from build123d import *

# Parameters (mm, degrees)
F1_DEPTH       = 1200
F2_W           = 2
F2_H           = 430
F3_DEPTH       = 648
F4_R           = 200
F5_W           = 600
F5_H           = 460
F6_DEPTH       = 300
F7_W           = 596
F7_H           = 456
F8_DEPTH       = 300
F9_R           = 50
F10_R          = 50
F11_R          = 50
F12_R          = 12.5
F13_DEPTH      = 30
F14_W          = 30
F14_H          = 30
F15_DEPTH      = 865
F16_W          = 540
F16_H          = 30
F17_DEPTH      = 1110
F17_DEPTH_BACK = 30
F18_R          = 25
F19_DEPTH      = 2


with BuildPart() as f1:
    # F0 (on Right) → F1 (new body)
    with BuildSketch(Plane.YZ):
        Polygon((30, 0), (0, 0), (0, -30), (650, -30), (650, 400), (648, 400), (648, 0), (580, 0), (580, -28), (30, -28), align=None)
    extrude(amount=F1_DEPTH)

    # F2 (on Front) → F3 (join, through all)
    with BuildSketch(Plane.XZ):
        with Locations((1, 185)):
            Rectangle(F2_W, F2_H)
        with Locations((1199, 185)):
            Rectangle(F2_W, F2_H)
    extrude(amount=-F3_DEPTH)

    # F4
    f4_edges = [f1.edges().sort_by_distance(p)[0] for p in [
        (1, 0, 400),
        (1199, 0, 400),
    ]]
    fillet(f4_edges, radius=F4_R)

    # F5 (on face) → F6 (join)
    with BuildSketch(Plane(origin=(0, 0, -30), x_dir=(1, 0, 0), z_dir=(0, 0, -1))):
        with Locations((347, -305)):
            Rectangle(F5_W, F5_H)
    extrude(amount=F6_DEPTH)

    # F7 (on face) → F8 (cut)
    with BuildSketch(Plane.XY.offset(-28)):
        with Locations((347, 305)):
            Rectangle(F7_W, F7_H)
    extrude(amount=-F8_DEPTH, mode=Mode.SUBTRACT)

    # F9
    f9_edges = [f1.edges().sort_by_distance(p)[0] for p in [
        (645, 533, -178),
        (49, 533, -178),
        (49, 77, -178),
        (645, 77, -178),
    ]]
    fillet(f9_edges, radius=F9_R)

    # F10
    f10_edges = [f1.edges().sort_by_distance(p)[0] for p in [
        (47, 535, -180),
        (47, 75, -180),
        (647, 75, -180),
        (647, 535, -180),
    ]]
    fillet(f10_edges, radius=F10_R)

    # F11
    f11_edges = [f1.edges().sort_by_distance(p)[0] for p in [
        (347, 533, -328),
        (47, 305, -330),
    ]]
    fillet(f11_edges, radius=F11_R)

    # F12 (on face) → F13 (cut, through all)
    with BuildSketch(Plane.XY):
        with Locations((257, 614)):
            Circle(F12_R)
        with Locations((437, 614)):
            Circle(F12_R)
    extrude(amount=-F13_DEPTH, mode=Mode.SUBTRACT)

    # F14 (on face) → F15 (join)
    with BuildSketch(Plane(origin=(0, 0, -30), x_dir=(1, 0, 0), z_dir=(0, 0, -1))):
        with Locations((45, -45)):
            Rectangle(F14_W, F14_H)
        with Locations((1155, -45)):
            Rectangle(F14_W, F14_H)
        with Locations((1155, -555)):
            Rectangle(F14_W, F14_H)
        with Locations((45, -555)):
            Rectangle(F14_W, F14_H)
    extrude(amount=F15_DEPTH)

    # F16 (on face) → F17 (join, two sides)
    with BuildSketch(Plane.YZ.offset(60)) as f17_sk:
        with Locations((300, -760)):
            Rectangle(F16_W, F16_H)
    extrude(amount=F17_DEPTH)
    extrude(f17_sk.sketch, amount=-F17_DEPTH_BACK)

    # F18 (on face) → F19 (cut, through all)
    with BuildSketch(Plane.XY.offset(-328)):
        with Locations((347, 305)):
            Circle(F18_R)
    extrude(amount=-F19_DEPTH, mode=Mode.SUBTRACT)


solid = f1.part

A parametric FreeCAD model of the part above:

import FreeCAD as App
import Part
import Sketcher

V = App.Vector
Q = App.Units.Quantity


def edges_at(feature, points):
    """Names of the edges that pass closest to the given points."""
    edges = feature.Shape.Edges
    near = lambda p: min(range(len(edges)), key=lambda i: edges[i].distToShape(Part.Vertex(*p))[0])
    return sorted({f"Edge{near(p) + 1}" for p in points})

doc = App.newDocument("Part")
body = doc.addObject("PartDesign::Body", "Body")

# Sketch on YZ plane
sketch1 = doc.addObject("Sketcher::SketchObject", "Sketch")
body.addObject(sketch1)
sketch1.AttachmentSupport = (doc.YZ_Plane, [""])
sketch1.MapMode = "FlatFace"
sketch1.addGeometry([
    Part.LineSegment(V(30, 0, 0), V(0, 0, 0)),  # 0
    Part.LineSegment(V(0, 0, 0), V(0, -30, 0)),  # 1
    Part.LineSegment(V(0, -30, 0), V(650, -30, 0)),  # 2
    Part.LineSegment(V(650, -30, 0), V(650, 400, 0)),  # 3
    Part.LineSegment(V(650, 400, 0), V(648, 400, 0)),  # 4
    Part.LineSegment(V(648, 400, 0), V(648, 0, 0)),  # 5
    Part.LineSegment(V(648, 0, 0), V(580, 0, 0)),  # 6
    Part.LineSegment(V(580, 0, 0), V(580, -28, 0)),  # 7
    Part.LineSegment(V(580, -28, 0), V(30, -28, 0)),  # 8
    Part.LineSegment(V(30, -28, 0), V(30, 0, 0)),  # 9
], False)
sketch1.addConstraint([
    Sketcher.Constraint("Coincident", 0, 2, 1, 1),
    Sketcher.Constraint("Coincident", 1, 2, 2, 1),
    Sketcher.Constraint("Coincident", 2, 2, 3, 1),
    Sketcher.Constraint("Coincident", 3, 2, 4, 1),
    Sketcher.Constraint("Coincident", 4, 2, 5, 1),
    Sketcher.Constraint("Coincident", 5, 2, 6, 1),
    Sketcher.Constraint("Coincident", 6, 2, 7, 1),
    Sketcher.Constraint("Coincident", 7, 2, 8, 1),
    Sketcher.Constraint("Coincident", 8, 2, 9, 1),
    Sketcher.Constraint("Coincident", 9, 2, 0, 1),
    Sketcher.Constraint("Horizontal", 0),
    Sketcher.Constraint("Vertical", 1),
    Sketcher.Constraint("Horizontal", 2),
    Sketcher.Constraint("Vertical", 3),
    Sketcher.Constraint("Horizontal", 4),
    Sketcher.Constraint("Vertical", 5),
    Sketcher.Constraint("Horizontal", 6),
    Sketcher.Constraint("Vertical", 7),
    Sketcher.Constraint("Horizontal", 8),
    Sketcher.Constraint("Vertical", 9),
    Sketcher.Constraint("Coincident", 0, 2, -1, 1),
    Sketcher.Constraint("PointOnObject", 5, 2, -1),
    Sketcher.Constraint("Equal", 0, 1),
    Sketcher.Constraint("DistanceX", 0, 2, 0, 1, Q("30 mm")),
    Sketcher.Constraint("DistanceX", 2, 1, 2, 2, Q("650 mm")),
    Sketcher.Constraint("DistanceX", 4, 2, 4, 1, Q("2 mm")),
    Sketcher.Constraint("DistanceX", 6, 2, 6, 1, Q("68 mm")),
    Sketcher.Constraint("DistanceY", 3, 1, 3, 2, Q("430 mm")),
    Sketcher.Constraint("DistanceY", 7, 2, 7, 1, Q("28 mm")),
])
pad1 = doc.addObject("PartDesign::Pad", "Pad")
body.addObject(pad1)
pad1.Profile = sketch1
pad1.Length = 1200

# Sketch on XZ plane
sketch2 = doc.addObject("Sketcher::SketchObject", "Sketch001")
body.addObject(sketch2)
sketch2.AttachmentSupport = (doc.XZ_Plane, [""])
sketch2.MapMode = "FlatFace"
sketch2.addGeometry([
    Part.LineSegment(V(0, 400, 0), V(0, -30, 0)),  # 0
    Part.LineSegment(V(0, -30, 0), V(2, -30, 0)),  # 1
    Part.LineSegment(V(2, -30, 0), V(2, 400, 0)),  # 2
    Part.LineSegment(V(2, 400, 0), V(0, 400, 0)),  # 3
    Part.LineSegment(V(1198, 400, 0), V(1198, -30, 0)),  # 4
    Part.LineSegment(V(1198, -30, 0), V(1200, -30, 0)),  # 5
    Part.LineSegment(V(1200, -30, 0), V(1200, 400, 0)),  # 6
    Part.LineSegment(V(1200, 400, 0), V(1198, 400, 0)),  # 7
], False)
sketch2.addConstraint([
    Sketcher.Constraint("Coincident", 0, 2, 1, 1),
    Sketcher.Constraint("Coincident", 1, 2, 2, 1),
    Sketcher.Constraint("Coincident", 2, 2, 3, 1),
    Sketcher.Constraint("Coincident", 3, 2, 0, 1),
    Sketcher.Constraint("Coincident", 4, 2, 5, 1),
    Sketcher.Constraint("Coincident", 5, 2, 6, 1),
    Sketcher.Constraint("Coincident", 6, 2, 7, 1),
    Sketcher.Constraint("Coincident", 7, 2, 4, 1),
    Sketcher.Constraint("Vertical", 0),
    Sketcher.Constraint("Horizontal", 1),
    Sketcher.Constraint("Vertical", 2),
    Sketcher.Constraint("Horizontal", 3),
    Sketcher.Constraint("Vertical", 4),
    Sketcher.Constraint("Horizontal", 5),
    Sketcher.Constraint("Vertical", 6),
    Sketcher.Constraint("Horizontal", 7),
    Sketcher.Constraint("PointOnObject", 0, 2, -2),
    Sketcher.Constraint("Horizontal", 1, 2, 4, 2),
    Sketcher.Constraint("Horizontal", 3, 2, 6, 2),
    Sketcher.Constraint("Equal", 3, 5),
    Sketcher.Constraint("DistanceX", 1, 1, 1, 2, Q("2 mm")),
    Sketcher.Constraint("DistanceY", 0, 2, 0, 1, Q("430 mm")),
    Sketcher.Constraint("DistanceY", 0, 2, -1, 1, Q("30 mm")),
    Sketcher.Constraint("DistanceX", -1, 1, 4, 2, Q("1198 mm")),
])
pad2 = doc.addObject("PartDesign::Pad", "Pad001")
body.addObject(pad2)
pad2.Profile = sketch2
pad2.Type = "UpToLast"
pad2.Reversed = True
doc.recompute()

fillet = doc.addObject("PartDesign::Fillet", "Fillet")
body.addObject(fillet)
fillet.Base = (pad2, edges_at(pad2, [(1, 0, 400), (1199, 0, 400)]))
fillet.Radius = 200

# Sketch on XY plane
sketch3 = doc.addObject("Sketcher::SketchObject", "Sketch002")
body.addObject(sketch3)
sketch3.AttachmentSupport = (doc.XY_Plane, [""])
sketch3.MapMode = "FlatFace"
sketch3.AttachmentOffset = App.Placement(V(0, 0, -30), App.Rotation())
sketch3.addGeometry([
    Part.LineSegment(V(47, 75, 0), V(47, 535, 0)),
    Part.LineSegment(V(47, 535, 0), V(647, 535, 0)),
    Part.LineSegment(V(647, 535, 0), V(647, 75, 0)),
    Part.LineSegment(V(647, 75, 0), V(47, 75, 0)),
], False)
sketch3.addConstraint([
    Sketcher.Constraint("Coincident", 0, 2, 1, 1),
    Sketcher.Constraint("Coincident", 1, 2, 2, 1),
    Sketcher.Constraint("Coincident", 2, 2, 3, 1),
    Sketcher.Constraint("Coincident", 3, 2, 0, 1),
    Sketcher.Constraint("Vertical", 0),
    Sketcher.Constraint("Horizontal", 1),
    Sketcher.Constraint("Vertical", 2),
    Sketcher.Constraint("Horizontal", 3),
    Sketcher.Constraint("DistanceX", 1, 1, 1, 2, Q("600 mm")),
    Sketcher.Constraint("DistanceY", 0, 1, 0, 2, Q("460 mm")),
    Sketcher.Constraint("DistanceX", -1, 1, 0, 2, Q("47 mm")),
    Sketcher.Constraint("DistanceY", -1, 1, 0, 2, Q("535 mm")),
])
pad3 = doc.addObject("PartDesign::Pad", "Pad002")
body.addObject(pad3)
pad3.Profile = sketch3
pad3.Length = 300
pad3.Reversed = True

# Sketch on XY plane
sketch4 = doc.addObject("Sketcher::SketchObject", "Sketch003")
body.addObject(sketch4)
sketch4.AttachmentSupport = (doc.XY_Plane, [""])
sketch4.MapMode = "FlatFace"
sketch4.AttachmentOffset = App.Placement(V(0, 0, -28), App.Rotation())
sketch4.addGeometry([
    Part.LineSegment(V(49, 533, 0), V(49, 77, 0)),
    Part.LineSegment(V(49, 77, 0), V(645, 77, 0)),
    Part.LineSegment(V(645, 77, 0), V(645, 533, 0)),
    Part.LineSegment(V(645, 533, 0), V(49, 533, 0)),
], False)
sketch4.addConstraint([
    Sketcher.Constraint("Coincident", 0, 2, 1, 1),
    Sketcher.Constraint("Coincident", 1, 2, 2, 1),
    Sketcher.Constraint("Coincident", 2, 2, 3, 1),
    Sketcher.Constraint("Coincident", 3, 2, 0, 1),
    Sketcher.Constraint("Vertical", 0),
    Sketcher.Constraint("Horizontal", 1),
    Sketcher.Constraint("Vertical", 2),
    Sketcher.Constraint("Horizontal", 3),
    Sketcher.Constraint("DistanceX", 1, 1, 1, 2, Q("596 mm")),
    Sketcher.Constraint("DistanceY", 0, 2, 0, 1, Q("456 mm")),
    Sketcher.Constraint("DistanceX", -1, 1, 0, 2, Q("49 mm")),
    Sketcher.Constraint("DistanceY", -1, 1, 0, 2, Q("77 mm")),
])
pocket1 = doc.addObject("PartDesign::Pocket", "Pocket")
body.addObject(pocket1)
pocket1.Profile = sketch4
pocket1.Length = 300
doc.recompute()

fillet2 = doc.addObject("PartDesign::Fillet", "Fillet001")
body.addObject(fillet2)
fillet2.Base = (pocket1, edges_at(pocket1, [
    (645, 533, -178),
    (49, 533, -178),
    (49, 77, -178),
    (645, 77, -178),
]))
fillet2.Radius = 50
doc.recompute()

fillet3 = doc.addObject("PartDesign::Fillet", "Fillet002")
body.addObject(fillet3)
fillet3.Base = (fillet2, edges_at(fillet2, [
    (47, 535, -180),
    (47, 75, -180),
    (647, 75, -180),
    (647, 535, -180),
]))
fillet3.Radius = 50
doc.recompute()

fillet4 = doc.addObject("PartDesign::Fillet", "Fillet003")
body.addObject(fillet4)
fillet4.Base = (fillet3, edges_at(fillet3, [(347, 533, -328), (47, 305, -330)]))
fillet4.Radius = 50

# Sketch on XY plane
sketch5 = doc.addObject("Sketcher::SketchObject", "Sketch004")
body.addObject(sketch5)
sketch5.AttachmentSupport = (doc.XY_Plane, [""])
sketch5.MapMode = "FlatFace"
sketch5.addGeometry([
    Part.Circle(V(257, 614, 0), V(0, 0, 1), 12.5),
    Part.Circle(V(437, 614, 0), V(0, 0, 1), 12.5),
], False)
sketch5.addConstraint([
    Sketcher.Constraint("Equal", 0, 1),
    Sketcher.Constraint("Horizontal", 0, 3, 1, 3),
    Sketcher.Constraint("Diameter", 0, Q("25 mm")),
    Sketcher.Constraint("DistanceX", -1, 1, 0, 3, Q("257 mm")),
    Sketcher.Constraint("DistanceY", -1, 1, 0, 3, Q("614 mm")),
    Sketcher.Constraint("DistanceX", -1, 1, 1, 3, Q("437 mm")),
])
pocket2 = doc.addObject("PartDesign::Pocket", "Pocket001")
body.addObject(pocket2)
pocket2.Profile = sketch5
pocket2.Type = "ThroughAll"

# Sketch on XY plane
sketch6 = doc.addObject("Sketcher::SketchObject", "Sketch005")
body.addObject(sketch6)
sketch6.AttachmentSupport = (doc.XY_Plane, [""])
sketch6.MapMode = "FlatFace"
sketch6.AttachmentOffset = App.Placement(V(0, 0, -30), App.Rotation())
sketch6.addGeometry([
    Part.LineSegment(V(30, 30, 0), V(30, 60, 0)),  # 0
    Part.LineSegment(V(30, 60, 0), V(60, 60, 0)),  # 1
    Part.LineSegment(V(60, 60, 0), V(60, 30, 0)),  # 2
    Part.LineSegment(V(60, 30, 0), V(30, 30, 0)),  # 3
    Part.LineSegment(V(1140, 30, 0), V(1140, 60, 0)),  # 4
    Part.LineSegment(V(1140, 60, 0), V(1170, 60, 0)),  # 5
    Part.LineSegment(V(1170, 60, 0), V(1170, 30, 0)),  # 6
    Part.LineSegment(V(1170, 30, 0), V(1140, 30, 0)),  # 7
    Part.LineSegment(V(1140, 540, 0), V(1140, 570, 0)),  # 8
    Part.LineSegment(V(1140, 570, 0), V(1170, 570, 0)),  # 9
    Part.LineSegment(V(1170, 570, 0), V(1170, 540, 0)),  # 10
    Part.LineSegment(V(1170, 540, 0), V(1140, 540, 0)),  # 11
    Part.LineSegment(V(30, 540, 0), V(30, 570, 0)),  # 12
    Part.LineSegment(V(30, 570, 0), V(60, 570, 0)),  # 13
    Part.LineSegment(V(60, 570, 0), V(60, 540, 0)),  # 14
    Part.LineSegment(V(60, 540, 0), V(30, 540, 0)),  # 15
], False)
sketch6.addConstraint([
    Sketcher.Constraint("Coincident", 0, 2, 1, 1),
    Sketcher.Constraint("Coincident", 1, 2, 2, 1),
    Sketcher.Constraint("Coincident", 2, 2, 3, 1),
    Sketcher.Constraint("Coincident", 3, 2, 0, 1),
    Sketcher.Constraint("Coincident", 4, 2, 5, 1),
    Sketcher.Constraint("Coincident", 5, 2, 6, 1),
    Sketcher.Constraint("Coincident", 6, 2, 7, 1),
    Sketcher.Constraint("Coincident", 7, 2, 4, 1),
    Sketcher.Constraint("Coincident", 8, 2, 9, 1),
    Sketcher.Constraint("Coincident", 9, 2, 10, 1),
    Sketcher.Constraint("Coincident", 10, 2, 11, 1),
    Sketcher.Constraint("Coincident", 11, 2, 8, 1),
    Sketcher.Constraint("Coincident", 12, 2, 13, 1),
    Sketcher.Constraint("Coincident", 13, 2, 14, 1),
    Sketcher.Constraint("Coincident", 14, 2, 15, 1),
    Sketcher.Constraint("Coincident", 15, 2, 12, 1),
    Sketcher.Constraint("Vertical", 0),
    Sketcher.Constraint("Horizontal", 1),
    Sketcher.Constraint("Vertical", 2),
    Sketcher.Constraint("Horizontal", 3),
    Sketcher.Constraint("Vertical", 4),
    Sketcher.Constraint("Horizontal", 5),
    Sketcher.Constraint("Vertical", 6),
    Sketcher.Constraint("Horizontal", 7),
    Sketcher.Constraint("Vertical", 8),
    Sketcher.Constraint("Horizontal", 9),
    Sketcher.Constraint("Vertical", 10),
    Sketcher.Constraint("Horizontal", 11),
    Sketcher.Constraint("Vertical", 12),
    Sketcher.Constraint("Horizontal", 13),
    Sketcher.Constraint("Vertical", 14),
    Sketcher.Constraint("Horizontal", 15),
    Sketcher.Constraint("Horizontal", 1, 2, 4, 2),
    Sketcher.Constraint("Horizontal", 3, 2, 6, 2),
    Sketcher.Constraint("Horizontal", 9, 2, 12, 2),
    Sketcher.Constraint("Horizontal", 11, 2, 14, 2),
    Sketcher.Constraint("Vertical", 7, 2, 8, 2),
    Sketcher.Constraint("Vertical", 6, 2, 9, 2),
    Sketcher.Constraint("Vertical", 3, 2, 12, 2),
    Sketcher.Constraint("Vertical", 2, 2, 13, 2),
    Sketcher.Constraint("Equal", 3, 5),
    Sketcher.Constraint("Equal", 15, 0),
    Sketcher.Constraint("Equal", 6, 8),
    Sketcher.Constraint("DistanceX", 1, 1, 1, 2, Q("30 mm")),
    Sketcher.Constraint("DistanceX", -1, 1, 0, 2, Q("30 mm")),
    Sketcher.Constraint("DistanceY", -1, 1, 0, 2, Q("60 mm")),
    Sketcher.Constraint("DistanceX", -1, 1, 4, 2, Q("1140 mm")),
    Sketcher.Constraint("DistanceY", -1, 1, 8, 2, Q("570 mm")),
])
pad4 = doc.addObject("PartDesign::Pad", "Pad003")
body.addObject(pad4)
pad4.Profile = sketch6
pad4.Length = 865
pad4.Reversed = True

# Sketch on YZ plane
sketch7 = doc.addObject("Sketcher::SketchObject", "Sketch006")
body.addObject(sketch7)
sketch7.AttachmentSupport = (doc.YZ_Plane, [""])
sketch7.MapMode = "FlatFace"
sketch7.AttachmentOffset = App.Placement(V(0, 0, 60), App.Rotation())
sketch7.addGeometry([
    Part.LineSegment(V(30, -745, 0), V(30, -775, 0)),
    Part.LineSegment(V(30, -775, 0), V(570, -775, 0)),
    Part.LineSegment(V(570, -775, 0), V(570, -745, 0)),
    Part.LineSegment(V(570, -745, 0), V(30, -745, 0)),
], False)
sketch7.addConstraint([
    Sketcher.Constraint("Coincident", 0, 2, 1, 1),
    Sketcher.Constraint("Coincident", 1, 2, 2, 1),
    Sketcher.Constraint("Coincident", 2, 2, 3, 1),
    Sketcher.Constraint("Coincident", 3, 2, 0, 1),
    Sketcher.Constraint("Vertical", 0),
    Sketcher.Constraint("Horizontal", 1),
    Sketcher.Constraint("Vertical", 2),
    Sketcher.Constraint("Horizontal", 3),
    Sketcher.Constraint("DistanceX", 1, 1, 1, 2, Q("540 mm")),
    Sketcher.Constraint("DistanceY", 0, 2, 0, 1, Q("30 mm")),
    Sketcher.Constraint("DistanceX", -1, 1, 0, 2, Q("30 mm")),
    Sketcher.Constraint("DistanceY", 0, 2, -1, 1, Q("775 mm")),
])
pad5 = doc.addObject("PartDesign::Pad", "Pad004")
body.addObject(pad5)
pad5.Profile = sketch7
pad5.Type = "TwoLengths"
pad5.Length = 1110
pad5.Length2 = 30

# Sketch on XY plane
sketch8 = doc.addObject("Sketcher::SketchObject", "Sketch007")
body.addObject(sketch8)
sketch8.AttachmentSupport = (doc.XY_Plane, [""])
sketch8.MapMode = "FlatFace"
sketch8.AttachmentOffset = App.Placement(V(0, 0, -328), App.Rotation())
sketch8.addGeometry(Part.Circle(V(347, 305, 0), V(0, 0, 1), 25), False)
sketch8.addConstraint([
    Sketcher.Constraint("Diameter", 0, Q("50 mm")),
    Sketcher.Constraint("DistanceX", -1, 1, 0, 3, Q("347 mm")),
    Sketcher.Constraint("DistanceY", -1, 1, 0, 3, Q("305 mm")),
])
pocket3 = doc.addObject("PartDesign::Pocket", "Pocket002")
body.addObject(pocket3)
pocket3.Profile = sketch8
pocket3.Length = 2

doc.recompute()
